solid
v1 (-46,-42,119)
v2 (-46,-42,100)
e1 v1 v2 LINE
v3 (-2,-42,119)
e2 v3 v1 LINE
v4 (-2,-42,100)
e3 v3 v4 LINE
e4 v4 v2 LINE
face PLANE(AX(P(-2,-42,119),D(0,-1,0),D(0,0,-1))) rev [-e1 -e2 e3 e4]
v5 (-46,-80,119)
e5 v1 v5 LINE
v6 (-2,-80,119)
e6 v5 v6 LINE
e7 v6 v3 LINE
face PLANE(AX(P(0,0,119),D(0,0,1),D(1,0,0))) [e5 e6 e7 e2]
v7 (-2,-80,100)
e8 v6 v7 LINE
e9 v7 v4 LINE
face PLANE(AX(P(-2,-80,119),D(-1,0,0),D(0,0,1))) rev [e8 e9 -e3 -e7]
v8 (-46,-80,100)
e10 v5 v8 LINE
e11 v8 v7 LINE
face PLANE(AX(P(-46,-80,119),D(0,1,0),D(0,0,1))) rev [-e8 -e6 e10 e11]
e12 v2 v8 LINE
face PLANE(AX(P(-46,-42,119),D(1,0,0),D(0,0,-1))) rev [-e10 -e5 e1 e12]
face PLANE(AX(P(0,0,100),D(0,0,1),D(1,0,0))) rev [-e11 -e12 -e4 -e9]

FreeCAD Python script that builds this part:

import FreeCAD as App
import Part
import Sketcher

V = App.Vector

doc = App.newDocument("Part")
params = doc.addObject("Spreadsheet::Sheet", "Params")
for row, (alias, value) in enumerate([
    ("sketch1_width", "44 mm"),
    ("sketch1_height", "38 mm"),
    ("pad1_length", "19 mm"),
], start=1):
    params.set(f"A{row}", alias)
    params.set(f"B{row}", "=" + value)
    params.setAlias(f"B{row}", alias)

body = doc.addObject("PartDesign::Body", "Body")

# Sketch on XY plane
sketch1 = doc.addObject("Sketcher::SketchObject", "Sketch")
body.addObject(sketch1)
sketch1.AttachmentSupport = (doc.XY_Plane, [""])
sketch1.MapMode = "FlatFace"
sketch1.AttachmentOffset = App.Placement(V(0, 0, 100), App.Rotation())
sketch1.addGeometry([
    Part.LineSegment(V(-46, -42, 0), V(-46, -80, 0)),
    Part.LineSegment(V(-46, -80, 0), V(-2, -80, 0)),
    Part.LineSegment(V(-2, -80, 0), V(-2, -42, 0)),
    Part.LineSegment(V(-2, -42, 0), V(-46, -42, 0)),
], False)
sketch1.addConstraint([
    Sketcher.Constraint("Coincident", 0, 2, 1, 1),
    Sketcher.Constraint("Coincident", 1, 2, 2, 1),
    Sketcher.Constraint("Coincident", 2, 2, 3, 1),
    Sketcher.Constraint("Coincident", 3, 2, 0, 1),
    Sketcher.Constraint("Vertical", 0),
    Sketcher.Constraint("Horizontal", 1),
    Sketcher.Constraint("Vertical", 2),
    Sketcher.Constraint("Horizontal", 3),
    Sketcher.Constraint("DistanceX", 1, 1, 1, 2, 44.0),
    Sketcher.Constraint("DistanceY", 0, 2, 0, 1, 38.0),
    Sketcher.Constraint("DistanceX", 0, 2, -1, 1, 46.0),
    Sketcher.Constraint("DistanceY", 0, 2, -1, 1, 80.0),
])
sketch1.setExpression("Constraints[8]", "Params.sketch1_width")
sketch1.setExpression("Constraints[9]", "Params.sketch1_height")
pad1 = doc.addObject("PartDesign::Pad", "Pad")
body.addObject(pad1)
pad1.Profile = sketch1
pad1.setExpression("Length", "Params.pad1_length")

doc.recompute()
